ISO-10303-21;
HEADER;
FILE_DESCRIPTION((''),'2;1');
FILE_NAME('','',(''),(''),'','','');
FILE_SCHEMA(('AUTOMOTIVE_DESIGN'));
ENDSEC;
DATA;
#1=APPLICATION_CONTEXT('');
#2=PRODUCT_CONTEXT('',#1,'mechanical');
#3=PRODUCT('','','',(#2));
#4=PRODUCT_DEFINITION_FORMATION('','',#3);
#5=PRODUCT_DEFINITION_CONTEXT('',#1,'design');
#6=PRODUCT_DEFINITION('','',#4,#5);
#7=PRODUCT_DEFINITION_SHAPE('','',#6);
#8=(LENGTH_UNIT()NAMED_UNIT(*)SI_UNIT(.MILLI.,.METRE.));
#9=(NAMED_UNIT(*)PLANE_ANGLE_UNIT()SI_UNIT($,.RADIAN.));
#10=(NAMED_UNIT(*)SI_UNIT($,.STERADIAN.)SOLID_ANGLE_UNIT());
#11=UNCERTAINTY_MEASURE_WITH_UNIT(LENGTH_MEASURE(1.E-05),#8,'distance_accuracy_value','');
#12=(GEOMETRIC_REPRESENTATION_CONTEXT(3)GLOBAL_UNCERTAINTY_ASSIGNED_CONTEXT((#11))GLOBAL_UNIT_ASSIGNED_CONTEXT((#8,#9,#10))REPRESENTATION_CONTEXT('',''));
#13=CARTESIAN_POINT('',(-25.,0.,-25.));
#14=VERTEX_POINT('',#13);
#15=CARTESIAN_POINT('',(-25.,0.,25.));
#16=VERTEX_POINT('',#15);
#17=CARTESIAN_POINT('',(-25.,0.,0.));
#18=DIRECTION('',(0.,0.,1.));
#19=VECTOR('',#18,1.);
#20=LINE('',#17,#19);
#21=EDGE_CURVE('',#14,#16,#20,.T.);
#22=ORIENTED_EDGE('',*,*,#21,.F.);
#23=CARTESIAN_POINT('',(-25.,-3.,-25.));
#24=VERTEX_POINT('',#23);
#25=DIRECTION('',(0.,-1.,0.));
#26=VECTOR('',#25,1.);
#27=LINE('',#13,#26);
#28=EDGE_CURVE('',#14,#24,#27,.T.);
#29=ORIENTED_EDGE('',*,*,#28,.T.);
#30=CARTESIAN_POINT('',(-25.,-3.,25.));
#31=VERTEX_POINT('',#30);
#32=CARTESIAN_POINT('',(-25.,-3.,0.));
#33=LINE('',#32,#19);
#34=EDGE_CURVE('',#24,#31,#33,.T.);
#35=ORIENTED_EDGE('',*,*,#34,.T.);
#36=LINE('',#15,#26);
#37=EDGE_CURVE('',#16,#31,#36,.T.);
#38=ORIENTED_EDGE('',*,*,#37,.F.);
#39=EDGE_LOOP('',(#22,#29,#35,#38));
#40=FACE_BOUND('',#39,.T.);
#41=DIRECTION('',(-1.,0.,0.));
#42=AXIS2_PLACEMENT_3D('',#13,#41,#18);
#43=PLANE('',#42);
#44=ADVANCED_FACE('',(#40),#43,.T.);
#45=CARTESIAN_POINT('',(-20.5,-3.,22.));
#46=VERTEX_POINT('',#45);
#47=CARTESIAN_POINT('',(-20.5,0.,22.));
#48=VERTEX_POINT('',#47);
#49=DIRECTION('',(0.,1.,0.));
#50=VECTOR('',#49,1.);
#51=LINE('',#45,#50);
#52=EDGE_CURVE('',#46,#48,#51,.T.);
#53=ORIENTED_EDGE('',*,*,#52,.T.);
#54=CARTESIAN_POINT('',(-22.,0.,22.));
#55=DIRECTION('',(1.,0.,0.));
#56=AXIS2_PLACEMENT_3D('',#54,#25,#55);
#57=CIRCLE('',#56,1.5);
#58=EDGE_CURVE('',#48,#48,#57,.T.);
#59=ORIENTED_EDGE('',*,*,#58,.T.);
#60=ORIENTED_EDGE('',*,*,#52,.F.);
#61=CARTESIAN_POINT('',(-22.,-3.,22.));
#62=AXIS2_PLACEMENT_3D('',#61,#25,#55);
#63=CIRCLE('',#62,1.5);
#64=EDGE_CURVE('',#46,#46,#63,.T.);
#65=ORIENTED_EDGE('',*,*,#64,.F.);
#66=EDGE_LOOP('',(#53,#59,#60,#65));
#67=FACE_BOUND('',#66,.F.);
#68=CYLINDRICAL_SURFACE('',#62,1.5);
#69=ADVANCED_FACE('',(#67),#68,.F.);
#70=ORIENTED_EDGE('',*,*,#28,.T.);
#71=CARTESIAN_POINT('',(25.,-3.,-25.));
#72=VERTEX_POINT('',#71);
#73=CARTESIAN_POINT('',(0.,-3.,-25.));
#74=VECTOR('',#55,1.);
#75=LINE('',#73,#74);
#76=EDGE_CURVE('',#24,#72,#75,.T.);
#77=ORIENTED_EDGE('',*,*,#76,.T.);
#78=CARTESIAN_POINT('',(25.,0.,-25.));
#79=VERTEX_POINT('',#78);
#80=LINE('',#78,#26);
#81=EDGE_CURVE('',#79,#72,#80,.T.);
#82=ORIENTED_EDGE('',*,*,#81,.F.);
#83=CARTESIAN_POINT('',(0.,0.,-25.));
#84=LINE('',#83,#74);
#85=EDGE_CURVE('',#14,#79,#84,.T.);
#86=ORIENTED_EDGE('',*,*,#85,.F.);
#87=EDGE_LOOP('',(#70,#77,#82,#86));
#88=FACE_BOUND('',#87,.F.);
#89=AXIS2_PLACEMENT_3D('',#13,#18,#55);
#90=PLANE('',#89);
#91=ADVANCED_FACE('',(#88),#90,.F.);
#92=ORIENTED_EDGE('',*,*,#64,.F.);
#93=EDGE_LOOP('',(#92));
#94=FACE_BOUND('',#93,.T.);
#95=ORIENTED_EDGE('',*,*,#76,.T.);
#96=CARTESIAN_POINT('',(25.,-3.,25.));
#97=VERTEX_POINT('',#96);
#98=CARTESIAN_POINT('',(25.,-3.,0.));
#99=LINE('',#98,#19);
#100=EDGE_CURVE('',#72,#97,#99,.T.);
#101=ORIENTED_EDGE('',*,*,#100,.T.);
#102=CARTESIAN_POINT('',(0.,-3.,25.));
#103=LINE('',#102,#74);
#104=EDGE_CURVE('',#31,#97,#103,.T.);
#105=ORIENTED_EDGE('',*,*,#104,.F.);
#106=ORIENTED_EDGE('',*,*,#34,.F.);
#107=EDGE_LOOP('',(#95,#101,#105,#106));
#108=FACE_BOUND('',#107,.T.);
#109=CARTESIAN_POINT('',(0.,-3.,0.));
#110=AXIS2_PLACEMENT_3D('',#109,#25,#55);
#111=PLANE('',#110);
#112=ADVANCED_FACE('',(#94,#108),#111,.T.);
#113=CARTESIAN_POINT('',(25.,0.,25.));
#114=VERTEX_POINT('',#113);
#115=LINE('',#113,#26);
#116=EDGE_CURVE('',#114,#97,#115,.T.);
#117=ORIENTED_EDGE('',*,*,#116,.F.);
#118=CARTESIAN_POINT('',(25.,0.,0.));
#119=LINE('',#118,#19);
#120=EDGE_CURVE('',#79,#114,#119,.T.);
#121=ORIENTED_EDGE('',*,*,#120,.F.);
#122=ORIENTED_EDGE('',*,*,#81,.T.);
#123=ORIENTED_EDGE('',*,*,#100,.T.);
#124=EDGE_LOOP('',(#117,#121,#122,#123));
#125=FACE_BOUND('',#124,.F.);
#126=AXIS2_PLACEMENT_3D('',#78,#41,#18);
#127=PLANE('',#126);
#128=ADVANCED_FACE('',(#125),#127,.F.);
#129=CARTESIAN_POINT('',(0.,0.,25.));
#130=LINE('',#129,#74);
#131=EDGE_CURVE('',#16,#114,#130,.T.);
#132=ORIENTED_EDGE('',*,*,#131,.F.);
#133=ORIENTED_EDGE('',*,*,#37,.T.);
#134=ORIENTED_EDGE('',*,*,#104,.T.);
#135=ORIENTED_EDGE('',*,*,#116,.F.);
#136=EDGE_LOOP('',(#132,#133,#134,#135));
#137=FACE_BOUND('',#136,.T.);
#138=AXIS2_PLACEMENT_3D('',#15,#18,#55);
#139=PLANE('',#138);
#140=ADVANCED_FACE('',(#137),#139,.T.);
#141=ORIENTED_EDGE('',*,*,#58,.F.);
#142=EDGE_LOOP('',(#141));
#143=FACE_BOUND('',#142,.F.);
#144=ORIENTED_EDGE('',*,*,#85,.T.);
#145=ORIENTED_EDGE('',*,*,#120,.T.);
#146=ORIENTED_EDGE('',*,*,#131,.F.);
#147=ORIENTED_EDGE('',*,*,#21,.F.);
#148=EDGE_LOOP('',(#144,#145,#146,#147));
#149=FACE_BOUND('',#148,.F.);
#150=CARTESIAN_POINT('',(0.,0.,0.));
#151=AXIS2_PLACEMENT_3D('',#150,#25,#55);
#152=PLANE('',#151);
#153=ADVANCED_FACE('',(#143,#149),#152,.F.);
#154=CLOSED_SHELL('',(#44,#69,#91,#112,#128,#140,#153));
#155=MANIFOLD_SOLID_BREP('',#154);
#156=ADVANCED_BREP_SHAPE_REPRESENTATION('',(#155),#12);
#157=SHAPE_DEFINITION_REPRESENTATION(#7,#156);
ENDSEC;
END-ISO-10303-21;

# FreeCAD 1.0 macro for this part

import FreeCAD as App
import Part
import Sketcher


def add_polygon(sketch, points):
    """Adds a closed chain of lines whose ends are joined by coincident constraints."""
    first, n = sketch.GeometryCount, len(points)
    for a, b in zip(points, points[1:] + points[:1]):
        sketch.addGeometry(Part.LineSegment(App.Vector(*a, 0), App.Vector(*b, 0)), False)
    for i in range(n):
        sketch.addConstraint(Sketcher.Constraint("Coincident", first + i, 2, first + (i + 1) % n, 1))

doc = App.newDocument("Part")
body = doc.addObject("PartDesign::Body", "Body")

sketch1 = doc.addObject("Sketcher::SketchObject", "Sketch")
body.addObject(sketch1)
sketch1.AttachmentSupport = (doc.XZ_Plane, [""])
sketch1.MapMode = "FlatFace"
add_polygon(sketch1, [(-25, 25), (-25, -25), (25, -25), (25, 25)])
sketch1.addConstraint(Sketcher.Constraint("Vertical", 0))
sketch1.addConstraint(Sketcher.Constraint("Horizontal", 1))
sketch1.addConstraint(Sketcher.Constraint("Vertical", 2))
sketch1.addConstraint(Sketcher.Constraint("Horizontal", 3))
sketch1.addConstraint(Sketcher.Constraint("Symmetric", 0, 2, 2, 2, -1, 1))
sketch1.addConstraint(Sketcher.Constraint("Equal", 3, 0))
sketch1.addConstraint(Sketcher.Constraint("DistanceX", 1, 1, 1, 2, 50.0))
pad1 = doc.addObject("PartDesign::Pad", "Pad")
body.addObject(pad1)
pad1.Profile = sketch1
pad1.Length = 3

sketch2 = doc.addObject("Sketcher::SketchObject", "Sketch001")
body.addObject(sketch2)
sketch2.AttachmentSupport = (doc.XZ_Plane, [""])
sketch2.MapMode = "FlatFace"
sketch2.AttachmentOffset = App.Placement(App.Vector(0, 0, 3), App.Rotation())
sketch2.addGeometry(Part.Circle(App.Vector(-22, 22, 0), App.Vector(0, 0, 1), 1.5), False)
sketch2.addConstraint(Sketcher.Constraint("Diameter", 0, 3.0))
sketch2.addConstraint(Sketcher.Constraint("DistanceX", 0, 3, -1, 1, 22.0))
sketch2.addConstraint(Sketcher.Constraint("DistanceY", -1, 1, 0, 3, 22.0))
pocket1 = doc.addObject("PartDesign::Pocket", "Pocket")
body.addObject(pocket1)
pocket1.Profile = sketch2
pocket1.Length = 25

doc.recompute()
